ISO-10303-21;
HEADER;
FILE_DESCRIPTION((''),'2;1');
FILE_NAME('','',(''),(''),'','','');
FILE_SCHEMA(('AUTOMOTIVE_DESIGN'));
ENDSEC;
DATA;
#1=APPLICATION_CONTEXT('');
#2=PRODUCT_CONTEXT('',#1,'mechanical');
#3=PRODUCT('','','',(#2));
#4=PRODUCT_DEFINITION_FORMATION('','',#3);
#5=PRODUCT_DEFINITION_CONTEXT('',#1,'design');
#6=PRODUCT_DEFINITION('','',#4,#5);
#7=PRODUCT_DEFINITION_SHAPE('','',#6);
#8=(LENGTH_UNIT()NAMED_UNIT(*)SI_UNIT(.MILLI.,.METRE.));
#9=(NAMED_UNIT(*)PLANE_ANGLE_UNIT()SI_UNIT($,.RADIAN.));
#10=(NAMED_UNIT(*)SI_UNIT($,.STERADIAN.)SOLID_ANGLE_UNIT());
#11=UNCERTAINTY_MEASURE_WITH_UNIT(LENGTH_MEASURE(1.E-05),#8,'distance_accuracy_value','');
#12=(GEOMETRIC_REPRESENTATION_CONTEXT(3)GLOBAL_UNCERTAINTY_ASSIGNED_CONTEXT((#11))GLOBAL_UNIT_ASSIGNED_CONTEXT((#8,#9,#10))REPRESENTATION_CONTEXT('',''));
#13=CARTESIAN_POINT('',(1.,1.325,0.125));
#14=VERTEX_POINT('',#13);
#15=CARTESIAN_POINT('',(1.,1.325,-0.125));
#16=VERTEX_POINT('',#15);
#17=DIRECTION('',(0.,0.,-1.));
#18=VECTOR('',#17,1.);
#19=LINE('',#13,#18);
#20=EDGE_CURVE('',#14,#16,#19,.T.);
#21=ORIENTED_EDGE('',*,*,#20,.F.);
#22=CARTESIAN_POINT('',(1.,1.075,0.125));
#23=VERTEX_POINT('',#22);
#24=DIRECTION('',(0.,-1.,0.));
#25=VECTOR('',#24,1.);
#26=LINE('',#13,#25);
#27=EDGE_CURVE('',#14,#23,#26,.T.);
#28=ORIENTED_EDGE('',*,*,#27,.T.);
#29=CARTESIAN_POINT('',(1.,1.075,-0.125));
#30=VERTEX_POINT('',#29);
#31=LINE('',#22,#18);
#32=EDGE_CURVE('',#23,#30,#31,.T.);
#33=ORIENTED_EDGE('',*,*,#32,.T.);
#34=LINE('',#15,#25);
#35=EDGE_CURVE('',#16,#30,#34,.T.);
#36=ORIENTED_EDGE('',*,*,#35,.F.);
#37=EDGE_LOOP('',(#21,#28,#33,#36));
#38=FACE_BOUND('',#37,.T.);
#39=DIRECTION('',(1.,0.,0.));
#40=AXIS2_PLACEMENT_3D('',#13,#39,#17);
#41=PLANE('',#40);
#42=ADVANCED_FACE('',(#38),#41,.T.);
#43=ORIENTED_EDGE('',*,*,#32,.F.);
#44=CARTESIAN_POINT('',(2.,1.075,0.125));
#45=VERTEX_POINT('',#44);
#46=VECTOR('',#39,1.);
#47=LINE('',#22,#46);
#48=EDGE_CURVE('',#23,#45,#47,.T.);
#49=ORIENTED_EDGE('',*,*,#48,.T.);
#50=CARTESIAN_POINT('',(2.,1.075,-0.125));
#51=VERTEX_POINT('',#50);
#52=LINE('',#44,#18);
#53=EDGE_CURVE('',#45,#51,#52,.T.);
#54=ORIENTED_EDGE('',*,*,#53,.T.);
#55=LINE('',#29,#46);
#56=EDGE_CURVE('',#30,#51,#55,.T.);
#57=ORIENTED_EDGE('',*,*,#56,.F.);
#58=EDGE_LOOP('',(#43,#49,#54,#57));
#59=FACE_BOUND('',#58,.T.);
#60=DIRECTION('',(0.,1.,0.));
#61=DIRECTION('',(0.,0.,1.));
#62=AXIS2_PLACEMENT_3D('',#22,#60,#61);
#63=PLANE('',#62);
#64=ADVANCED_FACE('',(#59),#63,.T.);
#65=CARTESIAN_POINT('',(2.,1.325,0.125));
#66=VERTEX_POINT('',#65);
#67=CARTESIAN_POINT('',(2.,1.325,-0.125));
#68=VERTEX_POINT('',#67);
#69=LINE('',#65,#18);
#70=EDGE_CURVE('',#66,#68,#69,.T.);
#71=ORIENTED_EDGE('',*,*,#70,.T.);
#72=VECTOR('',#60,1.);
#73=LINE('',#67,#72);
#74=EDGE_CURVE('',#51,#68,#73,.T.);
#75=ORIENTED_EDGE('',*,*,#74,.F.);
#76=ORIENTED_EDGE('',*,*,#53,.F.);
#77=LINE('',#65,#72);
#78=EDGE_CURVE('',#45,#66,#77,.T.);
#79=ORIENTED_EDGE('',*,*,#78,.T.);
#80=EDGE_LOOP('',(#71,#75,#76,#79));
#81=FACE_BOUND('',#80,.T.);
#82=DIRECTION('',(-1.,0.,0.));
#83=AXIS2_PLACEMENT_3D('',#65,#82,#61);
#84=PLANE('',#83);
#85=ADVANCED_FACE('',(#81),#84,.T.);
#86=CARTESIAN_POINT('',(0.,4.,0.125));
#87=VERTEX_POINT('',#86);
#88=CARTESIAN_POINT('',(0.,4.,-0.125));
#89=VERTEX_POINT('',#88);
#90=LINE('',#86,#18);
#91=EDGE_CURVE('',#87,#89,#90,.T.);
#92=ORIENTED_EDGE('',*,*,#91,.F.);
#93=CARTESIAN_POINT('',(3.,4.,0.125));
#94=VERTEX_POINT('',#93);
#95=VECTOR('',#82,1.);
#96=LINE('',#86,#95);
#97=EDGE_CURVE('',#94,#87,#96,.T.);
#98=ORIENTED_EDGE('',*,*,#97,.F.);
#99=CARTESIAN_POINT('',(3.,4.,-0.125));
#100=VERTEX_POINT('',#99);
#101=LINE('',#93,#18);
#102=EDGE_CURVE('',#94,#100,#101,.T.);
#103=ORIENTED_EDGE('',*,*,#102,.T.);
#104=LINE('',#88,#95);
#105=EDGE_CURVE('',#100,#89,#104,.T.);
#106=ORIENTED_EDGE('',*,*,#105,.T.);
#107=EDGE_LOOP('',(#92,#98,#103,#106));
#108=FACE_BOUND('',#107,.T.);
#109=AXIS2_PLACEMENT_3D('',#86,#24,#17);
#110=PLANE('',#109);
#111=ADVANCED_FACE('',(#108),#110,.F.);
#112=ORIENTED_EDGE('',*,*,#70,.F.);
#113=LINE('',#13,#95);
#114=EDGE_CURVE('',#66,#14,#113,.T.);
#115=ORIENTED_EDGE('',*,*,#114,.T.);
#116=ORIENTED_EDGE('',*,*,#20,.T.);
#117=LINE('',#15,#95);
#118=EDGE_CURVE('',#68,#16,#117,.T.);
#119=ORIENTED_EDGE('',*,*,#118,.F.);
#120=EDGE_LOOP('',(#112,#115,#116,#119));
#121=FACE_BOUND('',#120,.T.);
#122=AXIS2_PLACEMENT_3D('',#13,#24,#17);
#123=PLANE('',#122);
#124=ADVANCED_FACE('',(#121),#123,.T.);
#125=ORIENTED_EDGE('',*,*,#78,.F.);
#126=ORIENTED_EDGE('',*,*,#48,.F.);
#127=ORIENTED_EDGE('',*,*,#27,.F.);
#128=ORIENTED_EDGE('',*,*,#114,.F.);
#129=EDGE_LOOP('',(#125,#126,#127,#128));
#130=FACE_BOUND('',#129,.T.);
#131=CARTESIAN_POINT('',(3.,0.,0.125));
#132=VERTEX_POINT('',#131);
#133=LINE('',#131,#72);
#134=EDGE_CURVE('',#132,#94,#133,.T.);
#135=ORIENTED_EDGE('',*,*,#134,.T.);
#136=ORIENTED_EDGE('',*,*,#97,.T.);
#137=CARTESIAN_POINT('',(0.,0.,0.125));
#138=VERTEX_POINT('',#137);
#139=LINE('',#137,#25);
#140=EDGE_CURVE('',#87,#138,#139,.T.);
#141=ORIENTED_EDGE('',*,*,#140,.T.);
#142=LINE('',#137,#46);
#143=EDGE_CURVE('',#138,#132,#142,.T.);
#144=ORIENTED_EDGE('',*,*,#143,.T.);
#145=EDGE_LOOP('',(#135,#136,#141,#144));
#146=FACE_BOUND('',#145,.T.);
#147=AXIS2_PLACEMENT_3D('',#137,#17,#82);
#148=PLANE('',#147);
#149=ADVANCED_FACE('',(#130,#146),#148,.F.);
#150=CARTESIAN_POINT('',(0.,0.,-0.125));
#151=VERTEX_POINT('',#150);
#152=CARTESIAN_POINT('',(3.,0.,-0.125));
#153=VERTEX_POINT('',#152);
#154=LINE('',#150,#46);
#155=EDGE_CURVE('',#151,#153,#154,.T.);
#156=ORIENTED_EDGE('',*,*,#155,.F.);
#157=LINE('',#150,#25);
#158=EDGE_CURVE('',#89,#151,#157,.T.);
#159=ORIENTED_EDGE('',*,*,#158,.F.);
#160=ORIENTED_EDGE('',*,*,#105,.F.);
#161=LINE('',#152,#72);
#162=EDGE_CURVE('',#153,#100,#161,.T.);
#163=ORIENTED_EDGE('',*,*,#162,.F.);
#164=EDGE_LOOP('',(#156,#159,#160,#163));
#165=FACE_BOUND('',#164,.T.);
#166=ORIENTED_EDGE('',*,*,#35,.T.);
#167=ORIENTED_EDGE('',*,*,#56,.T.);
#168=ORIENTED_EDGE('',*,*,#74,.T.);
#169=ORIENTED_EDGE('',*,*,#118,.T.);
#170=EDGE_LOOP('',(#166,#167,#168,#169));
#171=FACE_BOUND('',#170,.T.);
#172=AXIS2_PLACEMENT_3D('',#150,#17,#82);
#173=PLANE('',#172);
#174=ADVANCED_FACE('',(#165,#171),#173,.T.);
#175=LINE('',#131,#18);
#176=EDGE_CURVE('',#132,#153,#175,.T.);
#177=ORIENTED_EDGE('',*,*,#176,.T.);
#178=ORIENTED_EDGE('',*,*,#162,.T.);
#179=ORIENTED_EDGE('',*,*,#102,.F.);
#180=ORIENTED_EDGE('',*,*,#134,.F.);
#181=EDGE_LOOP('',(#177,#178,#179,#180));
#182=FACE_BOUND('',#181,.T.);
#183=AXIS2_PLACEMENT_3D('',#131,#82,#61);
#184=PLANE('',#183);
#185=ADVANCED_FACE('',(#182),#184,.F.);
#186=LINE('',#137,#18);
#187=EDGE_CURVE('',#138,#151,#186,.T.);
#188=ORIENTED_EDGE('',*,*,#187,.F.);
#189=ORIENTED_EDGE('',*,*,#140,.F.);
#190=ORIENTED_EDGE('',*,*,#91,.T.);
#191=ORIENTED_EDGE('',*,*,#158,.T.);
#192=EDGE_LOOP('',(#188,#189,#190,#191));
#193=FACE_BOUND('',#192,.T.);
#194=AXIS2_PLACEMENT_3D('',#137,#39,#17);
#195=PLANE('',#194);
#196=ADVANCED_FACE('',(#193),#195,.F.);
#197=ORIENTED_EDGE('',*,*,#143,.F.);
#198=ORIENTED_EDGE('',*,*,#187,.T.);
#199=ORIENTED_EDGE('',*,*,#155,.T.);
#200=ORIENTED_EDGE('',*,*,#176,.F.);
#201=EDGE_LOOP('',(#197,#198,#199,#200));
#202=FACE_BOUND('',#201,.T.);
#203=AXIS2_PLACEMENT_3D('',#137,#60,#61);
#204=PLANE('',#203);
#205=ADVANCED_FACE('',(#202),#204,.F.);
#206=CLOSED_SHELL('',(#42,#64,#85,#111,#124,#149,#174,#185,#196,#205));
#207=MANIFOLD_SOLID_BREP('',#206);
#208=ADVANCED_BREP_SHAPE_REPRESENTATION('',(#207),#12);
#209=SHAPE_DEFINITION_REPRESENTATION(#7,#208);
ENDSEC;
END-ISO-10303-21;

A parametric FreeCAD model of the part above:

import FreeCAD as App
import Part
import Sketcher
from FreeCAD import Vector
Q = App.Units.Quantity


def add_polygon(sketch, points):
    """Adds a closed chain of lines whose ends are joined by coincident constraints."""
    first, n = sketch.GeometryCount, len(points)
    for a, b in zip(points, points[1:] + points[:1]):
        sketch.addGeometry(Part.LineSegment(App.Vector(*a, 0), App.Vector(*b, 0)), False)
    for i in range(n):
        sketch.addConstraint(Sketcher.Constraint("Coincident", first + i, 2, first + (i + 1) % n, 1))

doc = App.newDocument("Part")
body = doc.addObject("PartDesign::Body", "Body")

sketch1 = body.newObject("Sketcher::SketchObject", "Sketch")
sketch1.AttachmentSupport = (doc.getObject("XY_Plane"), [""])
sketch1.MapMode = "FlatFace"
add_polygon(sketch1, [(0, 4), (0, 0), (3, 0), (3, 4)])
add_polygon(sketch1, [(2, 1.075), (1, 1.075), (1, 1.325), (2, 1.325)])
sketch1.addConstraint([
    Sketcher.Constraint("Vertical", 0),
    Sketcher.Constraint("Horizontal", 1),
    Sketcher.Constraint("Vertical", 2),
    Sketcher.Constraint("Horizontal", 3),
    Sketcher.Constraint("Horizontal", 4),
    Sketcher.Constraint("Vertical", 5),
    Sketcher.Constraint("Horizontal", 6),
    Sketcher.Constraint("Vertical", 7),
    Sketcher.Constraint("Coincident", 0, 2, -1, 1),
    Sketcher.Constraint("DistanceX", 1, 1, 1, 2, Q("3 mm")),
    Sketcher.Constraint("DistanceX", 4, 2, 4, 1, Q("1 mm")),
    Sketcher.Constraint("DistanceY", 0, 2, 0, 1, Q("4 mm")),
    Sketcher.Constraint("DistanceX", -1, 1, 4, 2, Q("1 mm")),
    Sketcher.Constraint("DistanceY", 5, 1, 5, 2, Q("0.25 mm")),
    Sketcher.Constraint("DistanceY", -1, 1, 4, 2, Q("1.075 mm")),
])
pad1 = body.newObject("PartDesign::Pad", "Pad")
pad1.Profile = sketch1
pad1.Length = 0.25
pad1.Midplane = True

doc.recompute()
